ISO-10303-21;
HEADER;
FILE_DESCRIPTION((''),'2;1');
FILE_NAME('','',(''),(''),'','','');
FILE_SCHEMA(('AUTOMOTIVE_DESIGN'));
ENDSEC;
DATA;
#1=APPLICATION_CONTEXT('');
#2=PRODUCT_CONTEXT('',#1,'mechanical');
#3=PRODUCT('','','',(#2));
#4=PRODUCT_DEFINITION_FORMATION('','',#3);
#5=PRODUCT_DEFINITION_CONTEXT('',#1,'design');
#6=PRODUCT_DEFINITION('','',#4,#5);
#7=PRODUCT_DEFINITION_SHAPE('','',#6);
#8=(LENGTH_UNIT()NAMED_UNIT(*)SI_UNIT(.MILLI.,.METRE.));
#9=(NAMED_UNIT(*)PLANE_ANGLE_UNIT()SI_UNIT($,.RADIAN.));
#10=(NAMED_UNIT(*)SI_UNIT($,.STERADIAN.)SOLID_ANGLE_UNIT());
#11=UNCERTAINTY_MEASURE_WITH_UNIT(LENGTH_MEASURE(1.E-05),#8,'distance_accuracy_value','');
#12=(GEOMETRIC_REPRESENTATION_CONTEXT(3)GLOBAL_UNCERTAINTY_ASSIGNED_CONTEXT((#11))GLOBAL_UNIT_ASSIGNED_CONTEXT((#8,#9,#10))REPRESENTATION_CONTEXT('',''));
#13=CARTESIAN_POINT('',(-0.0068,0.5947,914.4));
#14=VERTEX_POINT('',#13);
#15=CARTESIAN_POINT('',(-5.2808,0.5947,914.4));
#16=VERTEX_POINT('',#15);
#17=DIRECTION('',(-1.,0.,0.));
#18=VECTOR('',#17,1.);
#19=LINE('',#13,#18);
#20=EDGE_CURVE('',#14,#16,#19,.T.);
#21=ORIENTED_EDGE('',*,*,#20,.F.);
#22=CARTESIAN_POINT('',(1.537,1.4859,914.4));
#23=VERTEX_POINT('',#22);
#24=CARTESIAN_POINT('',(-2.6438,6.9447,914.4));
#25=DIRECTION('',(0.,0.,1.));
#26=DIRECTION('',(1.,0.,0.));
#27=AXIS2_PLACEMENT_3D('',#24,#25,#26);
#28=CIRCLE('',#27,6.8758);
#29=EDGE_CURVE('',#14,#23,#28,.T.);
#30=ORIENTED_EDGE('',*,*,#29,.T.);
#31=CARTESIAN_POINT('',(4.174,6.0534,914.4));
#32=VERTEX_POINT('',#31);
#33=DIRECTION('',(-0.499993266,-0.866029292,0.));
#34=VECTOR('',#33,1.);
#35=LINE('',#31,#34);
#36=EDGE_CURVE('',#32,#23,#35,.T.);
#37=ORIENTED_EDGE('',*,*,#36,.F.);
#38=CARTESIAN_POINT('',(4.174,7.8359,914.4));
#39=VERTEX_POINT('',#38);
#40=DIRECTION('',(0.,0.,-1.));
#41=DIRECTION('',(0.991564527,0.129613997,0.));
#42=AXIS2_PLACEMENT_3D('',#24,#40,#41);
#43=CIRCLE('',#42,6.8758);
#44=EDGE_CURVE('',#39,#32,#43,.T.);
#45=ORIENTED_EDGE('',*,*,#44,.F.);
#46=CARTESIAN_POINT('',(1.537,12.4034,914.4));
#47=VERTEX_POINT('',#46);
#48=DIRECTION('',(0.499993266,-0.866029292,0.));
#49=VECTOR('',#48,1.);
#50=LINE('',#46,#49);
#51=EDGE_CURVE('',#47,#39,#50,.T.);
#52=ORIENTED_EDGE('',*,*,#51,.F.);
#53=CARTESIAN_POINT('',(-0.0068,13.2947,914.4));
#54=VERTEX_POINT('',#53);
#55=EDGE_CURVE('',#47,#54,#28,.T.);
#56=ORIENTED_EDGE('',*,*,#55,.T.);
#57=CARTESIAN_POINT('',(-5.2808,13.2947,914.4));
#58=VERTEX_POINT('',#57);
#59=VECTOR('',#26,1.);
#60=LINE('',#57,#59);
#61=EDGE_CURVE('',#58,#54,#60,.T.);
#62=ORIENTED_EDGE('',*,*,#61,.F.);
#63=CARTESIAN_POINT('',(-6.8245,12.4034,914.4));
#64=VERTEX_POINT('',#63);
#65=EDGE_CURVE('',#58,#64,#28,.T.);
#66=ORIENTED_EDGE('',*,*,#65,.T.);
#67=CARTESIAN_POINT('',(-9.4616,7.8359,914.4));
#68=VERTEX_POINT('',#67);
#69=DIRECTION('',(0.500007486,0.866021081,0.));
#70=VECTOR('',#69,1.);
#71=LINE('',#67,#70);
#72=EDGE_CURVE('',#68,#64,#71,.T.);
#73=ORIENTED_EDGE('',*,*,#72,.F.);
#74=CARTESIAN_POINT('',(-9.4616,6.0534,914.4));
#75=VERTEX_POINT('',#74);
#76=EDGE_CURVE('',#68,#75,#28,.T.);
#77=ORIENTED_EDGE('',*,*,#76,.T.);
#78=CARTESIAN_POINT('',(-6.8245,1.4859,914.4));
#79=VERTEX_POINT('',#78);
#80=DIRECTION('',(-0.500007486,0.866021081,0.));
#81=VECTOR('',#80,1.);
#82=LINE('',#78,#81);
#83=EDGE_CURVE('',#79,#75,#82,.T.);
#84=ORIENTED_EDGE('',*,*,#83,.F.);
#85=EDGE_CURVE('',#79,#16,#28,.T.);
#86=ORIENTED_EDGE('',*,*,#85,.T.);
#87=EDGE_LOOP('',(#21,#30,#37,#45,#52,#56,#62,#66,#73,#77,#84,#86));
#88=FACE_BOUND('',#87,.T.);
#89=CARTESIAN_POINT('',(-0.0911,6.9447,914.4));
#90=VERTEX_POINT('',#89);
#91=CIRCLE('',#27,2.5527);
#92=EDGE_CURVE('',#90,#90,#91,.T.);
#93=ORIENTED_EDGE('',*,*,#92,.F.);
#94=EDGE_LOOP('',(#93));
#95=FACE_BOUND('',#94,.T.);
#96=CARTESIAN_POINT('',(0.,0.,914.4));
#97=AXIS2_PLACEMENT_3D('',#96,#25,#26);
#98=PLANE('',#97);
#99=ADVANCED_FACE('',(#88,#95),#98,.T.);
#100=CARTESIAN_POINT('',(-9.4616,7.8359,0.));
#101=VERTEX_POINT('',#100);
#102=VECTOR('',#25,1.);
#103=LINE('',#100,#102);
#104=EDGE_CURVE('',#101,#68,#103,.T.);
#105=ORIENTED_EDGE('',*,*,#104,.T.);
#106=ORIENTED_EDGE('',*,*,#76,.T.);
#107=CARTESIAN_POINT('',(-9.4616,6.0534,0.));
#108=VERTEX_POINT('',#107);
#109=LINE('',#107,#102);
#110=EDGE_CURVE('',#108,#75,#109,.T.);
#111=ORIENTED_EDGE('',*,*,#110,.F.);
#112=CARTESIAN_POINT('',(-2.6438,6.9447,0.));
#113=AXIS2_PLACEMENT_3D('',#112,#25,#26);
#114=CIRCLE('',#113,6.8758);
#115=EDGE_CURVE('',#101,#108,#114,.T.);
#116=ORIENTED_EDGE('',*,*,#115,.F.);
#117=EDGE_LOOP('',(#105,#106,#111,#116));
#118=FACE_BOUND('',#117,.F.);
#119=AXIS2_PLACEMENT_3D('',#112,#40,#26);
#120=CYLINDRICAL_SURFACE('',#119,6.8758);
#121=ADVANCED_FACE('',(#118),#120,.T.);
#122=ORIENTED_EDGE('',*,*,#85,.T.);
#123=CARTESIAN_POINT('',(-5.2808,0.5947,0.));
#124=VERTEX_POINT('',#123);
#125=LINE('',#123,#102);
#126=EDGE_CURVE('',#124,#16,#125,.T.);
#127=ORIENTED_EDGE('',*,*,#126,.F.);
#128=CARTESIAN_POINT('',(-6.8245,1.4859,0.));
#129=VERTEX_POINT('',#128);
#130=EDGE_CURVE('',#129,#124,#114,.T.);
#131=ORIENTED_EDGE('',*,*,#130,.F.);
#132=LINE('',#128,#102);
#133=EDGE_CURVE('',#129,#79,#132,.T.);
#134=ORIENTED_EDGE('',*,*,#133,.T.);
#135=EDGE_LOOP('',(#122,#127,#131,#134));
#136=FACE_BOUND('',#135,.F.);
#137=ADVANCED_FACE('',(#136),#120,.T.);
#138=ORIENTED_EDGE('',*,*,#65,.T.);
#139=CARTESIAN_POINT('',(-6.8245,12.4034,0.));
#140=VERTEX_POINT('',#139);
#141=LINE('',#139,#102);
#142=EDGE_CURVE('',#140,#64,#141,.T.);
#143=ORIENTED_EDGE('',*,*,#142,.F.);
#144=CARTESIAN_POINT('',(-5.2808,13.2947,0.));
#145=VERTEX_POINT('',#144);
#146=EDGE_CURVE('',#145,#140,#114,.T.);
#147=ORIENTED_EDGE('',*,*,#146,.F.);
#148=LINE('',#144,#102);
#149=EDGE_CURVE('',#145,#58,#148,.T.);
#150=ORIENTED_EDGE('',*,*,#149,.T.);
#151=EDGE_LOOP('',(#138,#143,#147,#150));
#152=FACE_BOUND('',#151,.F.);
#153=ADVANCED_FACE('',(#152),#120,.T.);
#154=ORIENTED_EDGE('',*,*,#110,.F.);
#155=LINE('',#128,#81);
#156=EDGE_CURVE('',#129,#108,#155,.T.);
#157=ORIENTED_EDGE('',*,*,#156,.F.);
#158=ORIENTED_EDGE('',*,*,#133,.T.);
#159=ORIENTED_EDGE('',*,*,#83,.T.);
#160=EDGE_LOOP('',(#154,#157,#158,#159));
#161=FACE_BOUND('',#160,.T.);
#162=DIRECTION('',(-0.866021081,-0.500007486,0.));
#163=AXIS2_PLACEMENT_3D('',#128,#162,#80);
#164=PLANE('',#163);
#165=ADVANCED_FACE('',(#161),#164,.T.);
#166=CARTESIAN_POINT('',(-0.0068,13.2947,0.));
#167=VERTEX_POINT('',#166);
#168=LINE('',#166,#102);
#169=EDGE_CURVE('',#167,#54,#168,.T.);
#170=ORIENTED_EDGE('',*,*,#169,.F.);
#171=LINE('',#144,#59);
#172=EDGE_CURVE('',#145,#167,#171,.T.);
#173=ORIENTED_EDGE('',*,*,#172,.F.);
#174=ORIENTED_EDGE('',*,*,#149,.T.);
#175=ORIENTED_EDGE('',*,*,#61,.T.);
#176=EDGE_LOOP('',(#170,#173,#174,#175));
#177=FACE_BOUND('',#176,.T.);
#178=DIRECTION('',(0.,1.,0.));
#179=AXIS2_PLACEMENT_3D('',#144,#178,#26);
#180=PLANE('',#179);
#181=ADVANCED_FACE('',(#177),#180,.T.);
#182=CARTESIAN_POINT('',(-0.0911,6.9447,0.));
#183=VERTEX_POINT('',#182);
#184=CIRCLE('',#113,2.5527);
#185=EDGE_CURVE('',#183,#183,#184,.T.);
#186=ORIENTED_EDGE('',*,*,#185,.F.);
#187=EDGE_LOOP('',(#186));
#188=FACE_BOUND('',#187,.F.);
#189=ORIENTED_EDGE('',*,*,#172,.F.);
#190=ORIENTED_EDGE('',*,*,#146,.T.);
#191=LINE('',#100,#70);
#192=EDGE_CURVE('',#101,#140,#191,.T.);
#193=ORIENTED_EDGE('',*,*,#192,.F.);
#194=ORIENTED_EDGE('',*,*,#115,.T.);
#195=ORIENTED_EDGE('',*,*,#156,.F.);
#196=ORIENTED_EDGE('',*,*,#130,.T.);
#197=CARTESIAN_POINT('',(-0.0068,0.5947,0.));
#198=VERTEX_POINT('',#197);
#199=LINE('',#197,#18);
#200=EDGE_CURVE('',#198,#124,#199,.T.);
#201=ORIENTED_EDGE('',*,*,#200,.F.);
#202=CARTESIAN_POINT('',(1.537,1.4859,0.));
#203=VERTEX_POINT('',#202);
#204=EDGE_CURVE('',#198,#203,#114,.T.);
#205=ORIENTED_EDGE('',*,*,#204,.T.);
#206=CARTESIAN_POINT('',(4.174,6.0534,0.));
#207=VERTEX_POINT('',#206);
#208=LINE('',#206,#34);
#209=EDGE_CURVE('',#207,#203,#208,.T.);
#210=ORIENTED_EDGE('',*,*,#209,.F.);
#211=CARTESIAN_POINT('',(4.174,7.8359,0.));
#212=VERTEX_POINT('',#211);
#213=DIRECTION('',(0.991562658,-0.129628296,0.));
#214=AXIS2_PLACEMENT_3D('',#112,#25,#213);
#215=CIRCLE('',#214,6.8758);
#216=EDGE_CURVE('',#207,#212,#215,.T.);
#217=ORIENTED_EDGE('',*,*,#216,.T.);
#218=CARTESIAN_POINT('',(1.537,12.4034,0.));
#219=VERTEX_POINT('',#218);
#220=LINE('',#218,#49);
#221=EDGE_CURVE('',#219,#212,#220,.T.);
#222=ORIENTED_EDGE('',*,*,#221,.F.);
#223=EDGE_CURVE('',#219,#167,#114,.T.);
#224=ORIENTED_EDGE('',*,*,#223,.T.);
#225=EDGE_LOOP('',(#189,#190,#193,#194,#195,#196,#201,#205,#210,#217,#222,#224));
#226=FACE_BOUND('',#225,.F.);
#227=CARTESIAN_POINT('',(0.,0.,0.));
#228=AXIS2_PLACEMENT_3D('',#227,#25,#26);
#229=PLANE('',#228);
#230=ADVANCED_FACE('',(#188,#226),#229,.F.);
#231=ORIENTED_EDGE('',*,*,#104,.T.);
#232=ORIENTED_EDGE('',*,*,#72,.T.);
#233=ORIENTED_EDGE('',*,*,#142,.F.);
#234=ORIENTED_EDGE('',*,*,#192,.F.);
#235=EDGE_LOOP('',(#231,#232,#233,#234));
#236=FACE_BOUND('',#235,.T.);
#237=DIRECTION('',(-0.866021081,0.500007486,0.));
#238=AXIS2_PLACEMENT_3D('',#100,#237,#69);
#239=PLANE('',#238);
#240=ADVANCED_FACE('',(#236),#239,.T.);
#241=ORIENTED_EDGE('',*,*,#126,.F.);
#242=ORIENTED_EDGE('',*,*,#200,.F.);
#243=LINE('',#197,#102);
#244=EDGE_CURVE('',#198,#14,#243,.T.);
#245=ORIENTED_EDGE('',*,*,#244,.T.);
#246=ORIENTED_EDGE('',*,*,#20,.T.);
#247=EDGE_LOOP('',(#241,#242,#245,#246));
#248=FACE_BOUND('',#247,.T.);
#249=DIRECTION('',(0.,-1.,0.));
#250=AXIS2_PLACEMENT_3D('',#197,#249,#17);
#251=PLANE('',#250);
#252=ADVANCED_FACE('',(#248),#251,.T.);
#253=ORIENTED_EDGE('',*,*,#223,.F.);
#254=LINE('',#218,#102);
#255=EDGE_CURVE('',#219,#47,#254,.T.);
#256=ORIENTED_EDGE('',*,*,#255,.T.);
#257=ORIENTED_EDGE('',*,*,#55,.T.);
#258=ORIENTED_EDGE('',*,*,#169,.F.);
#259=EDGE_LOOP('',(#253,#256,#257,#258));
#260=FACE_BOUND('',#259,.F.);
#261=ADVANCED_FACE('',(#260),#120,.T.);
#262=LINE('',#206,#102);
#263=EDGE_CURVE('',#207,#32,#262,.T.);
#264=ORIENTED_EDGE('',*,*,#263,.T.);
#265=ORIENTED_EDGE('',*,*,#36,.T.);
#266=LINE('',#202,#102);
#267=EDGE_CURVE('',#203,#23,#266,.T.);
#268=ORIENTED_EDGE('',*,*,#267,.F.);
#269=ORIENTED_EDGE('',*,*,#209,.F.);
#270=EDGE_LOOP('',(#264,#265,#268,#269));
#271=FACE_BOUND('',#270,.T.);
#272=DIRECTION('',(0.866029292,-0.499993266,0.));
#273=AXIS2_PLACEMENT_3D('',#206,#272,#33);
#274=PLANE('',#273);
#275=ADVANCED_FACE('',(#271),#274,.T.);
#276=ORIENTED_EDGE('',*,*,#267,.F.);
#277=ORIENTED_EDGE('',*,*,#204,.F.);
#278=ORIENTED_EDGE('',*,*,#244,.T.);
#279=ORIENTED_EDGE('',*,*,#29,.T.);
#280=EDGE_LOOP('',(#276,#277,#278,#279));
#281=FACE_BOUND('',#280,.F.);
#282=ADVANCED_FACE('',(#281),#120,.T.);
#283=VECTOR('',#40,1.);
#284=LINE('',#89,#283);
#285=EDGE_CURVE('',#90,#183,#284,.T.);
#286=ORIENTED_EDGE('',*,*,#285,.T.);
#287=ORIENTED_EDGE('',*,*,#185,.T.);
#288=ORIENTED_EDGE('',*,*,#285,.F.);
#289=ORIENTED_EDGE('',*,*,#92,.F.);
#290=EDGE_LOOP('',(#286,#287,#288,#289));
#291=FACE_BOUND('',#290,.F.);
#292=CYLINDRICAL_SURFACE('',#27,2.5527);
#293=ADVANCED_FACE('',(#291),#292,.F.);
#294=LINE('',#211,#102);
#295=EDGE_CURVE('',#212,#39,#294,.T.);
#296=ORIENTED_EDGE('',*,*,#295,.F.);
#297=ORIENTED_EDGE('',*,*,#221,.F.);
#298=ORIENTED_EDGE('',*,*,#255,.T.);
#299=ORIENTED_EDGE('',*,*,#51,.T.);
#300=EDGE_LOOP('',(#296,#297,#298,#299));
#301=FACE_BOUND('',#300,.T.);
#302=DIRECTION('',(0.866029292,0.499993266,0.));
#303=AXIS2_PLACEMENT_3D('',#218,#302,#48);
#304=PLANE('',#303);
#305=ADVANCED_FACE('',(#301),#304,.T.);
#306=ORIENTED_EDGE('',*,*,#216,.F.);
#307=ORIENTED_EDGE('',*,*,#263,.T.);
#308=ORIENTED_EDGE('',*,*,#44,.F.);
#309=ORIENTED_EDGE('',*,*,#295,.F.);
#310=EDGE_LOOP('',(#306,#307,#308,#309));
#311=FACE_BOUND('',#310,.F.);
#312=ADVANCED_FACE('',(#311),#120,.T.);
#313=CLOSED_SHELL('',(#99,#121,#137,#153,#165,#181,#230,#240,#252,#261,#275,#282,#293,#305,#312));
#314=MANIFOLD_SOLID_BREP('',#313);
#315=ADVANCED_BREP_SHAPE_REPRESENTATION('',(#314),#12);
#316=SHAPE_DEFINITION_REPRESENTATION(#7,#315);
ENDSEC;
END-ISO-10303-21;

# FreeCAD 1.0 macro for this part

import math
import FreeCAD as App
import Part
import Sketcher
from FreeCAD import Vector
Q = App.Units.Quantity

doc = App.newDocument("Part")
body = doc.addObject("PartDesign::Body", "Body")

# Sketch on XY plane
sketch1 = body.newObject("Sketcher::SketchObject", "Sketch")
sketch1.AttachmentSupport = (doc.getObject("XY_Plane"), [""])
sketch1.MapMode = "FlatFace"
sketch1.addGeometry(Part.ArcOfCircle(Part.Circle(Vector(-2.6, 6.9, 0), Vector(0, 0, 1), 6.9), math.radians(-7.45), math.radians(7.45)), False)
sketch1.addGeometry(Part.LineSegment(Vector(4.2, 7.8, 0), Vector(1.5, 12.4, 0)), False)
sketch1.addGeometry(Part.ArcOfCircle(Part.Circle(Vector(-2.6, 6.9, 0), Vector(0, 0, 1), 6.9), math.radians(52.55), math.radians(67.45)), False)
sketch1.addGeometry(Part.LineSegment(Vector(0, 13.3, 0), Vector(-5.3, 13.3, 0)), False)
sketch1.addGeometry(Part.ArcOfCircle(Part.Circle(Vector(-2.6, 6.9, 0), Vector(0, 0, 1), 6.9), math.radians(112.55), math.radians(127.45)), False)
sketch1.addGeometry(Part.LineSegment(Vector(-6.8, 12.4, 0), Vector(-9.5, 7.8, 0)), False)
sketch1.addGeometry(Part.ArcOfCircle(Part.Circle(Vector(-2.6, 6.9, 0), Vector(0, 0, 1), 6.9), math.radians(172.55), math.radians(187.45)), False)
sketch1.addGeometry(Part.LineSegment(Vector(-9.5, 6.1, 0), Vector(-6.8, 1.5, 0)), False)
sketch1.addGeometry(Part.ArcOfCircle(Part.Circle(Vector(-2.6, 6.9, 0), Vector(0, 0, 1), 6.9), math.radians(-127.45), math.radians(-112.55)), False)
sketch1.addGeometry(Part.LineSegment(Vector(-5.3, 0.6, 0), Vector(0, 0.6, 0)), False)
sketch1.addGeometry(Part.ArcOfCircle(Part.Circle(Vector(-2.6, 6.9, 0), Vector(0, 0, 1), 6.9), math.radians(-67.45), math.radians(-52.55)), False)
sketch1.addGeometry(Part.LineSegment(Vector(1.5, 1.5, 0), Vector(4.2, 6.1, 0)), False)
sketch1.addConstraint(Sketcher.Constraint("Coincident", 0, 2, 1, 1))
sketch1.addConstraint(Sketcher.Constraint("Coincident", 1, 2, 2, 1))
sketch1.addConstraint(Sketcher.Constraint("Coincident", 2, 2, 3, 1))
sketch1.addConstraint(Sketcher.Constraint("Coincident", 3, 2, 4, 1))
sketch1.addConstraint(Sketcher.Constraint("Coincident", 4, 2, 5, 1))
sketch1.addConstraint(Sketcher.Constraint("Coincident", 5, 2, 6, 1))
sketch1.addConstraint(Sketcher.Constraint("Coincident", 6, 2, 7, 1))
sketch1.addConstraint(Sketcher.Constraint("Coincident", 7, 2, 8, 1))
sketch1.addConstraint(Sketcher.Constraint("Coincident", 8, 2, 9, 1))
sketch1.addConstraint(Sketcher.Constraint("Coincident", 9, 2, 10, 1))
sketch1.addConstraint(Sketcher.Constraint("Coincident", 10, 2, 11, 1))
sketch1.addConstraint(Sketcher.Constraint("Coincident", 11, 2, 0, 1))
sketch1.addConstraint(Sketcher.Constraint("Horizontal", 3))
sketch1.addConstraint(Sketcher.Constraint("Horizontal", 9))
sketch1.addConstraint(Sketcher.Constraint("Coincident", 2, 3, 0, 3))
sketch1.addConstraint(Sketcher.Constraint("Coincident", 4, 3, 0, 3))
sketch1.addConstraint(Sketcher.Constraint("Coincident", 6, 3, 0, 3))
sketch1.addConstraint(Sketcher.Constraint("Coincident", 8, 3, 0, 3))
sketch1.addConstraint(Sketcher.Constraint("Coincident", 10, 3, 0, 3))
sketch1.addConstraint(Sketcher.Constraint("Equal", 0, 2))
sketch1.addConstraint(Sketcher.Constraint("Equal", 2, 4))
sketch1.addConstraint(Sketcher.Constraint("Equal", 4, 6))
sketch1.addConstraint(Sketcher.Constraint("Equal", 6, 8))
sketch1.addConstraint(Sketcher.Constraint("Equal", 8, 10))
sketch1.addConstraint(Sketcher.Constraint("Parallel", 1, 7))
sketch1.addConstraint(Sketcher.Constraint("Parallel", 5, 11))
sketch1.addConstraint(Sketcher.Constraint("Horizontal", 1, 2, 4, 2))
sketch1.addConstraint(Sketcher.Constraint("Horizontal", 0, 2, 5, 2))
sketch1.addConstraint(Sketcher.Constraint("Horizontal", 7, 2, 10, 2))
sketch1.addConstraint(Sketcher.Constraint("Vertical", 5, 2, 6, 2))
sketch1.addConstraint(Sketcher.Constraint("Vertical", 3, 2, 8, 2))
sketch1.addConstraint(Sketcher.Constraint("Radius", 0, Q("0.2707 in")))
sketch1.addConstraint(Sketcher.Constraint("Angle", 1, Q("119.9996 deg")))
sketch1.addConstraint(Sketcher.Constraint("DistanceY", 0, 3, 2, 2, Q("0.25 in")))
sketch1.addConstraint(Sketcher.Constraint("DistanceY", 10, 2, 0, 2, Q("0.25 in")))
sketch1.addConstraint(Sketcher.Constraint("DistanceY", -1, 1, 0, 2, Q("0.3085 in")))
sketch1.addConstraint(Sketcher.Constraint("DistanceX", -1, 1, 1, 2, Q("0.0605 in")))
pad1 = body.newObject("PartDesign::Pad", "Pad")
pad1.Profile = sketch1
pad1.Length = Q("36 in")

# Sketch on XY plane
sketch2 = body.newObject("Sketcher::SketchObject", "Sketch001")
sketch2.AttachmentSupport = (doc.getObject("XY_Plane"), [""])
sketch2.MapMode = "FlatFace"
sketch2.AttachmentOffset = App.Placement(Vector(0, 0, 36 * 25.4), App.Rotation())
sketch2.addGeometry(Part.Circle(Vector(-2.6, 6.9, 0), Vector(0, 0, 1), 2.6), False)
sketch2.addConstraint(Sketcher.Constraint("Diameter", 0, Q("0.201 in")))
sketch2.addConstraint(Sketcher.Constraint("DistanceX", 0, 3, -1, 1, 2.6438))
sketch2.addConstraint(Sketcher.Constraint("DistanceY", -1, 1, 0, 3, 6.9447))
pocket1 = body.newObject("PartDesign::Pocket", "Pocket")
pocket1.Profile = sketch2
pocket1.Length = Q("36 in")

doc.recompute()
